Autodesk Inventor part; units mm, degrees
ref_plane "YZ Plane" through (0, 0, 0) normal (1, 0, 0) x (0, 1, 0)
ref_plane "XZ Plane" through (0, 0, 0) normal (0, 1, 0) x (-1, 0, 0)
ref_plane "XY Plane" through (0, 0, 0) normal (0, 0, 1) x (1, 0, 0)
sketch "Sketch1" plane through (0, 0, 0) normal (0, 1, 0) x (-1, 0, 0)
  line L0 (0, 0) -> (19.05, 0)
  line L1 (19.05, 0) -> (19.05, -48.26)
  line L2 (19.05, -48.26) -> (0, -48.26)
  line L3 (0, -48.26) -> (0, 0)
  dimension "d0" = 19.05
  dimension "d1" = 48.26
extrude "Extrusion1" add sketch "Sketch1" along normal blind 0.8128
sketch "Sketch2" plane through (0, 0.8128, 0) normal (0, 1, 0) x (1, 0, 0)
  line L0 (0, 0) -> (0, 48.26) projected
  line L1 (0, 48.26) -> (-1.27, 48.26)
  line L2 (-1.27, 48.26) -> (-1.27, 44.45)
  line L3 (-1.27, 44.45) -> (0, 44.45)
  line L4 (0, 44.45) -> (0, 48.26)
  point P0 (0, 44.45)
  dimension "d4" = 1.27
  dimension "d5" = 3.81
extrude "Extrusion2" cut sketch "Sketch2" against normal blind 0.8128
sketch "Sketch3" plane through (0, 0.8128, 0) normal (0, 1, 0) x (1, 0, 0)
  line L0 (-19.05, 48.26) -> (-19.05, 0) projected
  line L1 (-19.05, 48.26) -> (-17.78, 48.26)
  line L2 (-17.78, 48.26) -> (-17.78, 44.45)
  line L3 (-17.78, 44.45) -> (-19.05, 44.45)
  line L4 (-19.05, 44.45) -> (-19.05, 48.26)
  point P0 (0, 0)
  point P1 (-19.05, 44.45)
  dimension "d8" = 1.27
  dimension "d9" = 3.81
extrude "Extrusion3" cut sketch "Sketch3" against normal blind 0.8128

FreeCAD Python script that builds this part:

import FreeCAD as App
import Part
import Sketcher
from FreeCAD import Vector
Q = App.Units.Quantity


def add_polygon(sketch, points):
    """Adds a closed chain of lines whose ends are joined by coincident constraints."""
    first, n = sketch.GeometryCount, len(points)
    for a, b in zip(points, points[1:] + points[:1]):
        sketch.addGeometry(Part.LineSegment(App.Vector(*a, 0), App.Vector(*b, 0)), False)
    for i in range(n):
        sketch.addConstraint(Sketcher.Constraint("Coincident", first + i, 2, first + (i + 1) % n, 1))

doc = App.newDocument("Part")
body = doc.addObject("PartDesign::Body", "Body")

sketch1 = body.newObject("Sketcher::SketchObject", "Sketch")
sketch1.AttachmentSupport = (doc.getObject("XZ_Plane"), [""])
sketch1.MapMode = "FlatFace"
add_polygon(sketch1, [(-19.05, 0), (0, 0), (0, -48.26), (-19.05, -48.26)])
sketch1.addConstraint(Sketcher.Constraint("Horizontal", 0))
sketch1.addConstraint(Sketcher.Constraint("Vertical", 1))
sketch1.addConstraint(Sketcher.Constraint("Horizontal", 2))
sketch1.addConstraint(Sketcher.Constraint("Vertical", 3))
sketch1.addConstraint(Sketcher.Constraint("Coincident", 0, 2, -1, 1))
sketch1.addConstraint(Sketcher.Constraint("DistanceY", 1, 2, 1, 1, Q("1.9 in")))
sketch1.addConstraint(Sketcher.Constraint("DistanceX", 0, 1, 0, 2, Q("0.75 in")))
pad1 = body.newObject("PartDesign::Pad", "Pad")
pad1.Profile = sketch1
pad1.Length = Q("0.032 in")
pad1.Reversed = True

sketch2 = body.newObject("Sketcher::SketchObject", "Sketch001")
sketch2.AttachmentSupport = (doc.getObject("XZ_Plane"), [""])
sketch2.MapMode = "FlatFace"
sketch2.AttachmentOffset = App.Placement(Vector(0, 0, -0.032 * 25.4), App.Rotation())
add_polygon(sketch2, [(-1.27, -44.45), (0, -44.45), (0, -48.26), (-1.27, -48.26)])
sketch2.addConstraint(Sketcher.Constraint("Horizontal", 0))
sketch2.addConstraint(Sketcher.Constraint("Vertical", 1))
sketch2.addConstraint(Sketcher.Constraint("Horizontal", 2))
sketch2.addConstraint(Sketcher.Constraint("Vertical", 3))
sketch2.addConstraint(Sketcher.Constraint("PointOnObject", 0, 2, -2))
sketch2.addConstraint(Sketcher.Constraint("DistanceX", 0, 1, 0, 2, Q("0.05 in")))
sketch2.addConstraint(Sketcher.Constraint("DistanceY", 1, 2, 1, 1, Q("0.15 in")))
sketch2.addConstraint(Sketcher.Constraint("DistanceY", 1, 2, -1, 1, Q("1.9 in")))
pocket1 = body.newObject("PartDesign::Pocket", "Pocket")
pocket1.Profile = sketch2
pocket1.Length = Q("0.032 in")
pocket1.Reversed = True

sketch3 = body.newObject("Sketcher::SketchObject", "Sketch002")
sketch3.AttachmentSupport = (doc.getObject("XZ_Plane"), [""])
sketch3.MapMode = "FlatFace"
sketch3.AttachmentOffset = App.Placement(Vector(0, 0, -0.032 * 25.4), App.Rotation())
add_polygon(sketch3, [(-17.78, -48.26), (-19.05, -48.26), (-19.05, -44.45), (-17.78, -44.45)])
sketch3.addConstraint(Sketcher.Constraint("Horizontal", 0))
sketch3.addConstraint(Sketcher.Constraint("Vertical", 1))
sketch3.addConstraint(Sketcher.Constraint("Horizontal", 2))
sketch3.addConstraint(Sketcher.Constraint("Vertical", 3))
sketch3.addConstraint(Sketcher.Constraint("DistanceX", 0, 2, 0, 1, Q("0.05 in")))
sketch3.addConstraint(Sketcher.Constraint("DistanceY", 1, 1, 1, 2, Q("0.15 in")))
sketch3.addConstraint(Sketcher.Constraint("DistanceY", 0, 2, -1, 1, Q("1.9 in")))
sketch3.addConstraint(Sketcher.Constraint("DistanceX", 2, 2, -1, 1, Q("0.7 in")))
pocket2 = body.newObject("PartDesign::Pocket", "Pocket001")
pocket2.Profile = sketch3
pocket2.Length = Q("0.032 in")
pocket2.Reversed = True

doc.recompute()
